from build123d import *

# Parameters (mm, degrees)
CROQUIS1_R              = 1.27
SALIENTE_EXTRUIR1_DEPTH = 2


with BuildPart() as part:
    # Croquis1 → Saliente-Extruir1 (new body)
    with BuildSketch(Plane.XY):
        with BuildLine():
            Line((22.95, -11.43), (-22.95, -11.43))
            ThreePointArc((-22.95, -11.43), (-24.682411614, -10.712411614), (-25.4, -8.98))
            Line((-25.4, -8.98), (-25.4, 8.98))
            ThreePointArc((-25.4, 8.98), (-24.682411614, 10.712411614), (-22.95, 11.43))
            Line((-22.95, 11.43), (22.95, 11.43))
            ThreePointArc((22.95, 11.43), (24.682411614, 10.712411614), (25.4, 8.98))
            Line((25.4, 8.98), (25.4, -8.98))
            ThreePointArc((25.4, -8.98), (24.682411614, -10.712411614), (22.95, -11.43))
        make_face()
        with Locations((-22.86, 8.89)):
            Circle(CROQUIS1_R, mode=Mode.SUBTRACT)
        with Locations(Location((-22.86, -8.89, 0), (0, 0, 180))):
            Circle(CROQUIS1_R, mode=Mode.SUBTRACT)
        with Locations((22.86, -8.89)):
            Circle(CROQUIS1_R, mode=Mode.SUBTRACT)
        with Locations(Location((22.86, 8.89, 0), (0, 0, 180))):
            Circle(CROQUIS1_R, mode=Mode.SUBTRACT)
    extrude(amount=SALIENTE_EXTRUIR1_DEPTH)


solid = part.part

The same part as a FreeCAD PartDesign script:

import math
import FreeCAD as App
import Part
import Sketcher
Q = App.Units.Quantity

doc = App.newDocument("Part")
body = doc.addObject("PartDesign::Body", "Body")

# Sketch on XY plane
sketch1 = body.newObject("Sketcher::SketchObject", "Sketch")
sketch1.AttachmentSupport = (doc.getObject("XY_Plane"), [""])
sketch1.MapMode = "FlatFace"
sketch1.addGeometry(Part.LineSegment(App.Vector(-22.9, -11.4, 0), App.Vector(22.9, -11.4, 0)), False)
sketch1.addGeometry(Part.ArcOfCircle(Part.Circle(App.Vector(22.9, -9, 0), App.Vector(0, 0, 1), 2.5), math.radians(-90), math.radians(0)), False)
sketch1.addGeometry(Part.LineSegment(App.Vector(25.4, -9, 0), App.Vector(25.4, 9, 0)), False)
sketch1.addGeometry(Part.ArcOfCircle(Part.Circle(App.Vector(22.9, 9, 0), App.Vector(0, 0, 1), 2.5), math.radians(0), math.radians(90)), False)
sketch1.addGeometry(Part.LineSegment(App.Vector(22.9, 11.4, 0), App.Vector(-22.9, 11.4, 0)), False)
sketch1.addGeometry(Part.ArcOfCircle(Part.Circle(App.Vector(-22.9, 9, 0), App.Vector(0, 0, 1), 2.5), math.radians(90), math.radians(180)), False)
sketch1.addGeometry(Part.LineSegment(App.Vector(-25.4, 9, 0), App.Vector(-25.4, -9, 0)), False)
sketch1.addGeometry(Part.ArcOfCircle(Part.Circle(App.Vector(-22.9, -9, 0), App.Vector(0, 0, 1), 2.5), math.radians(180), math.radians(270)), False)
sketch1.addGeometry(Part.Circle(App.Vector(22.9, -8.9, 0), App.Vector(0, 0, 1), 1.3), False)
sketch1.addGeometry(Part.Circle(App.Vector(-22.9, -8.9, 0), App.Vector(0, 0, 1), 1.3), False)
sketch1.addGeometry(Part.Circle(App.Vector(22.9, 8.9, 0), App.Vector(0, 0, 1), 1.3), False)
sketch1.addGeometry(Part.Circle(App.Vector(-22.9, 8.9, 0), App.Vector(0, 0, 1), 1.3), False)
sketch1.addConstraint(Sketcher.Constraint("Tangent", 0, 2, 1, 1))
sketch1.addConstraint(Sketcher.Constraint("Tangent", 1, 2, 2, 1))
sketch1.addConstraint(Sketcher.Constraint("Tangent", 2, 2, 3, 1))
sketch1.addConstraint(Sketcher.Constraint("Tangent", 3, 2, 4, 1))
sketch1.addConstraint(Sketcher.Constraint("Tangent", 4, 2, 5, 1))
sketch1.addConstraint(Sketcher.Constraint("Tangent", 5, 2, 6, 1))
sketch1.addConstraint(Sketcher.Constraint("Tangent", 6, 2, 7, 1))
sketch1.addConstraint(Sketcher.Constraint("Tangent", 7, 2, 0, 1))
sketch1.addConstraint(Sketcher.Constraint("Horizontal", 0))
sketch1.addConstraint(Sketcher.Constraint("Vertical", 2))
sketch1.addConstraint(Sketcher.Constraint("Horizontal", 4))
sketch1.addConstraint(Sketcher.Constraint("Vertical", 6))
sketch1.addConstraint(Sketcher.Constraint("Equal", 1, 3))
sketch1.addConstraint(Sketcher.Constraint("Equal", 3, 5))
sketch1.addConstraint(Sketcher.Constraint("Equal", 5, 7))
sketch1.addConstraint(Sketcher.Constraint("Equal", 8, 9))
sketch1.addConstraint(Sketcher.Constraint("Equal", 9, 10))
sketch1.addConstraint(Sketcher.Constraint("Equal", 10, 11))
sketch1.addConstraint(Sketcher.Constraint("Symmetric", 1, 3, 5, 3, -1, 1))
sketch1.addConstraint(Sketcher.Constraint("Symmetric", 9, 3, 10, 3, -1, 1))
sketch1.addConstraint(Sketcher.Constraint("Symmetric", 8, 3, 11, 3, -1, 1))
sketch1.addConstraint(Sketcher.Constraint("Symmetric", 8, 3, 9, 3, -2))
sketch1.addConstraint(Sketcher.Constraint("Diameter", 8, Q("2.54 mm")))
sketch1.addConstraint(Sketcher.Constraint("Radius", 1, Q("2.45 mm")))
sketch1.addConstraint(Sketcher.Constraint("DistanceX", 0, 1, 0, 2, Q("45.9 mm")))
sketch1.addConstraint(Sketcher.Constraint("DistanceY", 2, 1, 2, 2, Q("17.96 mm")))
sketch1.addConstraint(Sketcher.Constraint("DistanceX", -1, 1, 8, 3, Q("22.86 mm")))
sketch1.addConstraint(Sketcher.Constraint("DistanceY", 8, 3, -1, 1, Q("8.89 mm")))
pad1 = body.newObject("PartDesign::Pad", "Pad")
pad1.Profile = sketch1
pad1.Length = 2

doc.recompute()
